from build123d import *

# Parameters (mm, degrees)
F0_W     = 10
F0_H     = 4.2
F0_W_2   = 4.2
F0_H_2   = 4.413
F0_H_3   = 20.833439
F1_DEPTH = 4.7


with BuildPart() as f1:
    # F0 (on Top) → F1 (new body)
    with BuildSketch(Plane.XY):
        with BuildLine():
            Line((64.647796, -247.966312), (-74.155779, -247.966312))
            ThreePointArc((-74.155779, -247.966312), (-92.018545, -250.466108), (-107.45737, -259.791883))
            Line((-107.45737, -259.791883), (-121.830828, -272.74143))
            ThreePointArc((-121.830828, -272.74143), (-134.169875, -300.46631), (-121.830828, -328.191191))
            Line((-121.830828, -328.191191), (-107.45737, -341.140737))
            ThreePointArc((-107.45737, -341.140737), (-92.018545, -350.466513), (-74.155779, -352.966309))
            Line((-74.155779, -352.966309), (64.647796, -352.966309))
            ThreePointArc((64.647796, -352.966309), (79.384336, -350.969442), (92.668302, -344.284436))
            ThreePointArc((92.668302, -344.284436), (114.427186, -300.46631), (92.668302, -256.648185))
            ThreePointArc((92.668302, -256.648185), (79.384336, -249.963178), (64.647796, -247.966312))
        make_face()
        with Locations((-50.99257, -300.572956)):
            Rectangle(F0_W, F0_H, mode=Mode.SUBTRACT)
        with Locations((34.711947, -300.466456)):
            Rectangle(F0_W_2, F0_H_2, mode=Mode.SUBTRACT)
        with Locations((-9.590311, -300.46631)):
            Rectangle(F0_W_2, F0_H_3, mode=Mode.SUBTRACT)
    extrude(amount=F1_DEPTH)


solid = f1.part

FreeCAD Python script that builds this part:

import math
import FreeCAD as App
import Part
import Sketcher

V = App.Vector
Q = App.Units.Quantity

doc = App.newDocument("Part")
params = doc.addObject("Spreadsheet::Sheet", "Params")
for row, (alias, value) in enumerate([
    ("sketch1_radius", "54.999998 mm"),
    ("sketch1_width", "10 mm"),
    ("sketch1_width2", "4.2 mm"),
    ("sketch1_width3", "4.2 mm"),
    ("sketch1_height", "4.2 mm"),
    ("pad1_length", "4.7 mm"),
], start=1):
    params.set(f"A{row}", alias)
    params.set(f"B{row}", "=" + value)
    params.setAlias(f"B{row}", alias)

body = doc.addObject("PartDesign::Body", "Body")

sketch1 = doc.addObject("Sketcher::SketchObject", "Sketch")
body.addObject(sketch1)
sketch1.AttachmentSupport = (doc.XY_Plane, [""])
sketch1.MapMode = "FlatFace"
sketch1.addGeometry([
    Part.LineSegment(V(64.647796, -247.966312, 0), V(-74.155779, -247.966312, 0)),
    Part.ArcOfCircle(Part.Circle(V(-76.989342, -292.78934, 0), V(0, 0, 1), 44.912503), math.radians(86.382765), math.radians(132.717674)),
    Part.LineSegment(V(-107.45737, -259.791883, 0), V(-121.830828, -272.74143, 0)),
    Part.ArcOfCircle(Part.Circle(V(-96.852525, -300.466311, 0), V(0, 0, 1), 37.31735), math.radians(132.016783), math.radians(227.983217)),
    Part.LineSegment(V(-121.830828, -328.191191, 0), V(-107.45737, -341.140737, 0)),
    Part.ArcOfCircle(Part.Circle(V(-76.989342, -308.143286, 0), V(0, 0, 1), 44.912498), math.radians(-132.717678), math.radians(-86.382764)),
    Part.LineSegment(V(-74.155779, -352.966309, 0), V(64.647796, -352.966309, 0)),
    Part.ArcOfCircle(Part.Circle(V(66.048536, -307.928517, 0), V(0, 0, 1), 45.059569), math.radians(-91.781407), math.radians(-53.788451)),
    Part.ArcOfCircle(Part.Circle(V(59.427188, -300.466311, 0), V(0, 0, 1), 54.999998), math.radians(-52.815478), math.radians(52.815478)),
    Part.ArcOfCircle(Part.Circle(V(66.048541, -293.004087, 0), V(0, 0, 1), 45.059552), math.radians(53.788443), math.radians(91.781414)),
    Part.LineSegment(V(-45.99257, -302.672956, 0), V(-55.99257, -302.672956, 0)),
    Part.LineSegment(V(-55.99257, -302.672956, 0), V(-55.99257, -298.472956, 0)),
    Part.LineSegment(V(-55.99257, -298.472956, 0), V(-45.99257, -298.472956, 0)),
    Part.LineSegment(V(-45.99257, -298.472956, 0), V(-45.99257, -302.672956, 0)),
    Part.LineSegment(V(36.811947, -302.672956, 0), V(32.611947, -302.672956, 0)),
    Part.LineSegment(V(32.611947, -302.672956, 0), V(32.611947, -298.259956, 0)),
    Part.LineSegment(V(32.611947, -298.259956, 0), V(36.811947, -298.259956, 0)),
    Part.LineSegment(V(36.811947, -298.259956, 0), V(36.811947, -302.672956, 0)),
    Part.LineSegment(V(-7.490311, -310.88303, 0), V(-11.690311, -310.88303, 0)),
    Part.LineSegment(V(-11.690311, -310.88303, 0), V(-11.690311, -290.049591, 0)),
    Part.LineSegment(V(-11.690311, -290.049591, 0), V(-7.490311, -290.049591, 0)),
    Part.LineSegment(V(-7.490311, -290.049591, 0), V(-7.490311, -310.88303, 0)),
], False)
sketch1.addConstraint([
    Sketcher.Constraint("Coincident", 0, 2, 1, 1),
    Sketcher.Constraint("Coincident", 1, 2, 2, 1),
    Sketcher.Constraint("Coincident", 2, 2, 3, 1),
    Sketcher.Constraint("Coincident", 3, 2, 4, 1),
    Sketcher.Constraint("Coincident", 4, 2, 5, 1),
    Sketcher.Constraint("Coincident", 5, 2, 6, 1),
    Sketcher.Constraint("Coincident", 6, 2, 7, 1),
    Sketcher.Constraint("Coincident", 7, 2, 8, 1),
    Sketcher.Constraint("Coincident", 8, 2, 9, 1),
    Sketcher.Constraint("Coincident", 9, 2, 0, 1),
    Sketcher.Constraint("Coincident", 10, 2, 11, 1),
    Sketcher.Constraint("Coincident", 11, 2, 12, 1),
    Sketcher.Constraint("Coincident", 12, 2, 13, 1),
    Sketcher.Constraint("Coincident", 13, 2, 10, 1),
    Sketcher.Constraint("Coincident", 14, 2, 15, 1),
    Sketcher.Constraint("Coincident", 15, 2, 16, 1),
    Sketcher.Constraint("Coincident", 16, 2, 17, 1),
    Sketcher.Constraint("Coincident", 17, 2, 14, 1),
    Sketcher.Constraint("Coincident", 18, 2, 19, 1),
    Sketcher.Constraint("Coincident", 19, 2, 20, 1),
    Sketcher.Constraint("Coincident", 20, 2, 21, 1),
    Sketcher.Constraint("Coincident", 21, 2, 18, 1),
    Sketcher.Constraint("Horizontal", 0),
    Sketcher.Constraint("Horizontal", 6),
    Sketcher.Constraint("Horizontal", 10),
    Sketcher.Constraint("Vertical", 11),
    Sketcher.Constraint("Horizontal", 12),
    Sketcher.Constraint("Vertical", 13),
    Sketcher.Constraint("Horizontal", 14),
    Sketcher.Constraint("Vertical", 15),
    Sketcher.Constraint("Horizontal", 16),
    Sketcher.Constraint("Vertical", 17),
    Sketcher.Constraint("Horizontal", 18),
    Sketcher.Constraint("Vertical", 19),
    Sketcher.Constraint("Horizontal", 20),
    Sketcher.Constraint("Vertical", 21),
    Sketcher.Constraint("Radius", 8, Q("54.999998 mm")),
    Sketcher.Constraint("DistanceX", 10, 2, 10, 1, Q("10 mm")),
    Sketcher.Constraint("DistanceX", 14, 2, 14, 1, Q("4.2 mm")),
    Sketcher.Constraint("DistanceX", 18, 2, 18, 1, Q("4.2 mm")),
    Sketcher.Constraint("DistanceY", 11, 1, 11, 2, Q("4.2 mm")),
    Sketcher.Constraint("Radius", 5, Q("44.912498 mm")),
    Sketcher.Constraint("DistanceY", 3, 3, 0, 2, Q("52.499999 mm")),
    Sketcher.Constraint("DistanceY", 8, 3, 0, 2, Q("52.499999 mm")),
    Sketcher.Constraint("DistanceY", 5, 2, 3, 3, Q("52.499998 mm")),
    Sketcher.Constraint("DistanceY", 15, 1, 15, 2, Q("4.413 mm")),
    Sketcher.Constraint("Radius", 3, Q("37.31735 mm")),
    Sketcher.Constraint("Radius", 7, Q("45.059569 mm")),
    Sketcher.Constraint("Radius", 1, Q("44.912503 mm")),
    Sketcher.Constraint("Radius", 9, Q("45.059552 mm")),
    Sketcher.Constraint("Distance", 2, Q("19.3465 mm")),
    Sketcher.Constraint("Distance", 4, Q("19.346499 mm")),
    Sketcher.Constraint("DistanceY", 19, 1, 19, 2, Q("20.833439 mm")),
    Sketcher.Constraint("DistanceY", 5, 3, 9, 3, Q("15.139199 mm")),
    Sketcher.Constraint("DistanceY", 9, 3, 8, 2, Q("36.355902 mm")),
    Sketcher.Constraint("DistanceX", 0, 2, 0, 1, Q("138.803575 mm")),
    Sketcher.Constraint("DistanceX", 6, 1, 6, 2, Q("138.803575 mm")),
    Sketcher.Constraint("DistanceX", 1, 3, -1, 1, Q("76.989342 mm")),
    Sketcher.Constraint("DistanceY", 1, 3, -1, 1, Q("292.78934 mm")),
    Sketcher.Constraint("DistanceY", 3, 3, -1, 1, Q("300.466311 mm")),
    Sketcher.Constraint("DistanceX", -1, 1, 9, 3, Q("66.048541 mm")),
    Sketcher.Constraint("DistanceX", 1, 2, -1, 1, Q("107.45737 mm")),
    Sketcher.Constraint("DistanceY", 2, 2, -1, 1, Q("272.74143 mm")),
    Sketcher.Constraint("DistanceY", 3, 2, -1, 1, Q("328.191191 mm")),
    Sketcher.Constraint("DistanceX", 4, 2, -1, 1, Q("107.45737 mm")),
    Sketcher.Constraint("DistanceX", 10, 2, -1, 1, Q("55.99257 mm")),
    Sketcher.Constraint("DistanceX", 18, 2, -1, 1, Q("11.690311 mm")),
    Sketcher.Constraint("DistanceY", 18, 2, -1, 1, Q("310.88303 mm")),
    Sketcher.Constraint("DistanceX", 5, 3, 7, 3, Q("143.037879 mm")),
    Sketcher.Constraint("DistanceY", 5, 3, 10, 2, Q("5.47033 mm")),
    Sketcher.Constraint("DistanceX", 14, 2, 8, 3, Q("26.815241 mm")),
    Sketcher.Constraint("DistanceY", 7, 3, 14, 2, Q("5.255561 mm")),
])
sketch1.setExpression("Constraints[36]", "Params.sketch1_radius")
sketch1.setExpression("Constraints[37]", "Params.sketch1_width")
sketch1.setExpression("Constraints[38]", "Params.sketch1_width2")
sketch1.setExpression("Constraints[39]", "Params.sketch1_width3")
sketch1.setExpression("Constraints[40]", "Params.sketch1_height")
pad1 = doc.addObject("PartDesign::Pad", "Pad")
body.addObject(pad1)
pad1.Profile = sketch1
pad1.setExpression("Length", "Params.pad1_length")

doc.recompute()
